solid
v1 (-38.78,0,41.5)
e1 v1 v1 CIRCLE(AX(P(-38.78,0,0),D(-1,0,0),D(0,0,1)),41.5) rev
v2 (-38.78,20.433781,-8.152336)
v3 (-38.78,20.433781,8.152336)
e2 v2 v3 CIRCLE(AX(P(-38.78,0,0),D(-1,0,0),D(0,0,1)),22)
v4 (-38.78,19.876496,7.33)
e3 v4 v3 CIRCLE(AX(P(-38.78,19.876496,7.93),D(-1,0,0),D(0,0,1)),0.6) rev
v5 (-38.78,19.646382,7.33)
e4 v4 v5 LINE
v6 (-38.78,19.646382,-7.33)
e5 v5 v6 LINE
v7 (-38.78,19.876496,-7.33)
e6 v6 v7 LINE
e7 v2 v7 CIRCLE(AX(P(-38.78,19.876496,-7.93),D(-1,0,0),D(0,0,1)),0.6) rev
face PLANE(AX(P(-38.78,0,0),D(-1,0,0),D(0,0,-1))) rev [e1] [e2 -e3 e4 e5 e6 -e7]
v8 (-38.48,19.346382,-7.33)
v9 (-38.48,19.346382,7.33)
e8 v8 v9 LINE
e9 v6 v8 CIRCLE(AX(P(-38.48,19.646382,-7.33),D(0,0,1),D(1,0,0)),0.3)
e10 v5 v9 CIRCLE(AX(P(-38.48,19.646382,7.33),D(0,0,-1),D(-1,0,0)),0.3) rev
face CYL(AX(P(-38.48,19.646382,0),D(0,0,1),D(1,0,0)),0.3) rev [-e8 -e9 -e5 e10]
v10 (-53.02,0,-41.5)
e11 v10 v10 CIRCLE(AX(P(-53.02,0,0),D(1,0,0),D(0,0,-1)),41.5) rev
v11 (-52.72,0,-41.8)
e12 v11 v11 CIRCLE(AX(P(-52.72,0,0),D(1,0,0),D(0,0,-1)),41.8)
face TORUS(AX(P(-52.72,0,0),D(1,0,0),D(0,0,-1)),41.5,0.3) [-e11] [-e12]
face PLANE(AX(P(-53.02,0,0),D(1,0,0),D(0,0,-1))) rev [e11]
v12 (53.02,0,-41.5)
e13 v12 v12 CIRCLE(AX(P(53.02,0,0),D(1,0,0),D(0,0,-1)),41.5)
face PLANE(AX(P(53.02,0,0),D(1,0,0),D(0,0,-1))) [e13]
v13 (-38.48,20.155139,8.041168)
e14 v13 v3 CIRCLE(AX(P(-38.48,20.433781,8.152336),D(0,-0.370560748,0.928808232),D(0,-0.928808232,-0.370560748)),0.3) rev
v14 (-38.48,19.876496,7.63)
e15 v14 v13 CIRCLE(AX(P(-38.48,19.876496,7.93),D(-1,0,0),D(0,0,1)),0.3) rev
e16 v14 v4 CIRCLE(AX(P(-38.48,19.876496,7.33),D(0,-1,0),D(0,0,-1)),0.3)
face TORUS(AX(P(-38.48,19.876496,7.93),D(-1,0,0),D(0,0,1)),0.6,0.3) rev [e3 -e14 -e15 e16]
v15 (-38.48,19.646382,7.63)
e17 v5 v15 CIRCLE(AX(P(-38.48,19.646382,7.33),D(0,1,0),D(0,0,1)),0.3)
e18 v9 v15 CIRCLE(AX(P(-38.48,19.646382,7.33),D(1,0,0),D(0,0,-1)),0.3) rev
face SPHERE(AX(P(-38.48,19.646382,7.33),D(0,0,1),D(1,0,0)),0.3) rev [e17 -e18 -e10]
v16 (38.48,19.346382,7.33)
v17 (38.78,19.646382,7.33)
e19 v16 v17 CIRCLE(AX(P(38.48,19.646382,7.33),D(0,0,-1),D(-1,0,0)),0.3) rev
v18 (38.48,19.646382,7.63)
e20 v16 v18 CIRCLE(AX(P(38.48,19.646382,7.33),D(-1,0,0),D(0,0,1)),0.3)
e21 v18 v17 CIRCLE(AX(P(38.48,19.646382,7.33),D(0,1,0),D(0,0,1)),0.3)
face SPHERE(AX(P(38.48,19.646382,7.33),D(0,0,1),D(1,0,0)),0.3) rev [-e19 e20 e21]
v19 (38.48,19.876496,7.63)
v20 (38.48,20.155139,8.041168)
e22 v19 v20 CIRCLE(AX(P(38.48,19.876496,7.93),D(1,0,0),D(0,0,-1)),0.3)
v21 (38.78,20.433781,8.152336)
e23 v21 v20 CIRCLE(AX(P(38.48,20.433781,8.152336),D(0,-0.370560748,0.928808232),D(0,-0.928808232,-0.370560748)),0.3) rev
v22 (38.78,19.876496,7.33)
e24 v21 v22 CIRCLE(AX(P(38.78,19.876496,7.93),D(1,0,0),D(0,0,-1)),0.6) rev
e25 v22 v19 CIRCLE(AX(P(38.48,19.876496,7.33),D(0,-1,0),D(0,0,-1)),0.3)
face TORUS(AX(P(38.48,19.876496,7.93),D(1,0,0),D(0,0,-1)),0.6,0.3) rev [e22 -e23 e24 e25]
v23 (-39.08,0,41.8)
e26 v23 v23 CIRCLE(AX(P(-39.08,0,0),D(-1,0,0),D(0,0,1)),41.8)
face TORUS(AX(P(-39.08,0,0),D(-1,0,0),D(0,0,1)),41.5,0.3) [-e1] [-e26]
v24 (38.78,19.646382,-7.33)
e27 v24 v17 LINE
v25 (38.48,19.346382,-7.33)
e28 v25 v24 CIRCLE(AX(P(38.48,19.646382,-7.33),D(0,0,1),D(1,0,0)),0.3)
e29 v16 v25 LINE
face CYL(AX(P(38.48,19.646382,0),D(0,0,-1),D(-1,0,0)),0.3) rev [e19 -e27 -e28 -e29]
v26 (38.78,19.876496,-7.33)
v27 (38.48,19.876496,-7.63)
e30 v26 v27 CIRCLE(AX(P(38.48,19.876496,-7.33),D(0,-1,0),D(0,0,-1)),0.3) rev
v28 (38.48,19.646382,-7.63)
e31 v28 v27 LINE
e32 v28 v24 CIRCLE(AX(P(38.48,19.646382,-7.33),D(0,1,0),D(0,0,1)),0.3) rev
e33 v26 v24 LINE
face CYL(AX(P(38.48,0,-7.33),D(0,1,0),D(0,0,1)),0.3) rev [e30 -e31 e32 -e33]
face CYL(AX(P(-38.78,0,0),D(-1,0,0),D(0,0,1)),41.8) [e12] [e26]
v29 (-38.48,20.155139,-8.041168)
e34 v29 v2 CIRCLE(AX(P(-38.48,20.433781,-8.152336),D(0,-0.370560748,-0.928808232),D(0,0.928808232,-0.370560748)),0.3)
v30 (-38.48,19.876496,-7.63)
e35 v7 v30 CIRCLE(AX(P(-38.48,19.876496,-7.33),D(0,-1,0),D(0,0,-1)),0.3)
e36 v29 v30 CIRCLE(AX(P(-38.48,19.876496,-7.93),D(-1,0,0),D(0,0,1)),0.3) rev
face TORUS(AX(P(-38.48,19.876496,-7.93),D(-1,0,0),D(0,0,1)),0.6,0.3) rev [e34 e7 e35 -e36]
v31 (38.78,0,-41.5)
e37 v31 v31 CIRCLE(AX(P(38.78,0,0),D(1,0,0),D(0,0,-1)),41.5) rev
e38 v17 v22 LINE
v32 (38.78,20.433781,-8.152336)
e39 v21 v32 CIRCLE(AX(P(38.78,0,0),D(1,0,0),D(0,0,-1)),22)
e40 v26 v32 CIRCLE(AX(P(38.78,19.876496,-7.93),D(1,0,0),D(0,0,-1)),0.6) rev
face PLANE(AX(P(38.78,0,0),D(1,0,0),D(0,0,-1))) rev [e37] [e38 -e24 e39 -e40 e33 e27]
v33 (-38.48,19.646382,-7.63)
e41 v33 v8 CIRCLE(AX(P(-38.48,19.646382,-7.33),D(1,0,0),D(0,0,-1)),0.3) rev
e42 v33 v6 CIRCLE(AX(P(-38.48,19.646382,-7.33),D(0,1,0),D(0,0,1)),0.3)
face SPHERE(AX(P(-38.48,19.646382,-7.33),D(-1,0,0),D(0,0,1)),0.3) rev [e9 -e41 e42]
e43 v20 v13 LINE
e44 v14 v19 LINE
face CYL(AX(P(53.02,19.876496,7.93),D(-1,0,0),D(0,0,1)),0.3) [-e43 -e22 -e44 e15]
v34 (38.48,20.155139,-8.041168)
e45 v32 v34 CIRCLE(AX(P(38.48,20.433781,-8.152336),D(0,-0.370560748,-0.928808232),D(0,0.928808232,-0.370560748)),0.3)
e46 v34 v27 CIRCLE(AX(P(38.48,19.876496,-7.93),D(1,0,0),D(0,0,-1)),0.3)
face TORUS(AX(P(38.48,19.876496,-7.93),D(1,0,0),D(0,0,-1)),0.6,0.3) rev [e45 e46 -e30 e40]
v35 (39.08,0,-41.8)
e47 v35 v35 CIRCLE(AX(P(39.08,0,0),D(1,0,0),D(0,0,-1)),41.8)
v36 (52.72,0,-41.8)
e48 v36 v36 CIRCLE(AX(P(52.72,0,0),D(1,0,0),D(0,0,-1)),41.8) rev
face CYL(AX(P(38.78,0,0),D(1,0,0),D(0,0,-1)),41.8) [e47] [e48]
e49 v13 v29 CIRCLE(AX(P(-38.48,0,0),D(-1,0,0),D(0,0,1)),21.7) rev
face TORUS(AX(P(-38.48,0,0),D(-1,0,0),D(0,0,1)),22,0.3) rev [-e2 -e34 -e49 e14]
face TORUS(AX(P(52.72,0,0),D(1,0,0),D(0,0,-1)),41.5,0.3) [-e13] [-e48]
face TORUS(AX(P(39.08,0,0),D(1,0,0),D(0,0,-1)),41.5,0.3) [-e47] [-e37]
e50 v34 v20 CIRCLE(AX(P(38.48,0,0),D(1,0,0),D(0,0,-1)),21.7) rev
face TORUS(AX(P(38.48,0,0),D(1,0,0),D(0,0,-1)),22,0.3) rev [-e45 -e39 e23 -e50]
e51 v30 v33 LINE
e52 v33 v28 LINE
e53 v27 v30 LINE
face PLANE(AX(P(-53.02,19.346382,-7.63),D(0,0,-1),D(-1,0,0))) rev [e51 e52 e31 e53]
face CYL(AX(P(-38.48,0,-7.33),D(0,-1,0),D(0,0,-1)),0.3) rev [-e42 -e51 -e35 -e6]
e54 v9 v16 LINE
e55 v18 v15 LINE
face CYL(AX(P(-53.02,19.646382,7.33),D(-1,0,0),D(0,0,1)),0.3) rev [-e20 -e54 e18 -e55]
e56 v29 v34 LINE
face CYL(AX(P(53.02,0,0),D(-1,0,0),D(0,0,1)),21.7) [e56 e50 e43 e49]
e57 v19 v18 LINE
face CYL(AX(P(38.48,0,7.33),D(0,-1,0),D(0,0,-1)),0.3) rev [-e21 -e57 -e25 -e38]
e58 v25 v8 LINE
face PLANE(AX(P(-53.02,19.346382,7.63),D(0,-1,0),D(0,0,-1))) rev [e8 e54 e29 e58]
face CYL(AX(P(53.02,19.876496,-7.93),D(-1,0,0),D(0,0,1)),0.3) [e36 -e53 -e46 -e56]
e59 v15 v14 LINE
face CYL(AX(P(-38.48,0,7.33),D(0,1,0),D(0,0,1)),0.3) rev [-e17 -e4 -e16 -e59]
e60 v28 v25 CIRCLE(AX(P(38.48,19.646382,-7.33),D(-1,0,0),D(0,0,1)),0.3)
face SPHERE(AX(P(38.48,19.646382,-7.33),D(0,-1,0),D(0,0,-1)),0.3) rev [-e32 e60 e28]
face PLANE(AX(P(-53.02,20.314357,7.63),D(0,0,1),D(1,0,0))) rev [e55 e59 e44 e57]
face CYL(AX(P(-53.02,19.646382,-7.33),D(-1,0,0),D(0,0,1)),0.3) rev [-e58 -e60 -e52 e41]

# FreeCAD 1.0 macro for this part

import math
import FreeCAD as App
import Part
import Sketcher
from FreeCAD import Vector
Q = App.Units.Quantity

doc = App.newDocument("Part")
params = doc.addObject("Spreadsheet::Sheet", "Params")
for row, (alias, value) in enumerate([
    ("sketch1_diameter", "43.4 mm"),
    ("pad1_length", "106.04 mm"),
    ("sketch2_radius", "21.7 mm"),
    ("sketch2_height", "15.26 mm"),
    ("sketch3_diameter", "83.6 mm"),
    ("pad2_length", "14.24 mm"),
    ("fillet_radius", "0.3 mm"),
], start=1):
    params.set(f"A{row}", alias)
    params.set(f"B{row}", "=" + value)
    params.setAlias(f"B{row}", alias)

body = doc.addObject("PartDesign::Body", "Body")

# Sketch on YZ plane
sketch1 = doc.addObject("Sketcher::SketchObject", "Sketch")
body.addObject(sketch1)
sketch1.AttachmentSupport = (doc.YZ_Plane, [""])
sketch1.MapMode = "FlatFace"
sketch1.addGeometry(Part.Circle(Vector(0, 0, 0), Vector(0, 0, 1), 22), False)
sketch1.addConstraint([
    Sketcher.Constraint("Coincident", 0, 3, -1, 1),
    Sketcher.Constraint("Diameter", 0, Q("43.4 mm")),
])
sketch1.setExpression("Constraints[1]", "Params.sketch1_diameter")
pad1 = doc.addObject("PartDesign::Pad", "Pad")
body.addObject(pad1)
pad1.Profile = sketch1
pad1.setExpression("Length", "Params.pad1_length")
pad1.Midplane = True

# Sketch on YZ plane
sketch2 = doc.addObject("Sketcher::SketchObject", "Sketch001")
body.addObject(sketch2)
sketch2.AttachmentSupport = (doc.YZ_Plane, [""])
sketch2.MapMode = "FlatFace"
sketch2.AttachmentOffset = App.Placement(Vector(0, 0, 53.02), App.Rotation())
sketch2.addGeometry([
    Part.LineSegment(Vector(20.3, 7.6, 0), Vector(19.3, 7.6, 0)),
    Part.LineSegment(Vector(19.3, 7.6, 0), Vector(19.3, -7.6, 0)),
    Part.LineSegment(Vector(19.3, -7.6, 0), Vector(20.3, -7.6, 0)),
    Part.ArcOfCircle(Part.Circle(Vector(0, 0, 0), Vector(0, 0, 1), 21.7), math.radians(-21), math.radians(21)),
], False)
sketch2.addConstraint([
    Sketcher.Constraint("Coincident", 0, 2, 1, 1),
    Sketcher.Constraint("Coincident", 1, 2, 2, 1),
    Sketcher.Constraint("Coincident", 2, 2, 3, 1),
    Sketcher.Constraint("Coincident", 3, 2, 0, 1),
    Sketcher.Constraint("Horizontal", 0),
    Sketcher.Constraint("Vertical", 1),
    Sketcher.Constraint("Horizontal", 2),
    Sketcher.Constraint("Coincident", 3, 3, -1, 1),
    Sketcher.Constraint("Vertical", 2, 2, 3, 2),
    Sketcher.Constraint("Radius", 3, Q("21.7 mm")),
    Sketcher.Constraint("DistanceY", 1, 2, 1, 1, Q("15.26 mm")),
    Sketcher.Constraint("DistanceX", 0, 2, 0, 1, Q("0.967975 mm")),
])
sketch2.setExpression("Constraints[9]", "Params.sketch2_radius")
sketch2.setExpression("Constraints[10]", "Params.sketch2_height")
pocket1 = doc.addObject("PartDesign::Pocket", "Pocket")
body.addObject(pocket1)
pocket1.Profile = sketch2
pocket1.Type = "ThroughAll"
pocket1.Midplane = True

# Sketch on YZ plane
sketch3 = doc.addObject("Sketcher::SketchObject", "Sketch002")
body.addObject(sketch3)
sketch3.AttachmentSupport = (doc.YZ_Plane, [""])
sketch3.MapMode = "FlatFace"
sketch3.AttachmentOffset = App.Placement(Vector(0, 0, 53.02), App.Rotation())
sketch3.addGeometry(Part.Circle(Vector(0, 0, 0), Vector(0, 0, 1), 42), False)
sketch3.addConstraint([
    Sketcher.Constraint("Coincident", 0, 3, -1, 1),
    Sketcher.Constraint("Diameter", 0, Q("83.6 mm")),
])
sketch3.setExpression("Constraints[1]", "Params.sketch3_diameter")
pad2 = doc.addObject("PartDesign::Pad", "Pad001")
body.addObject(pad2)
pad2.Profile = sketch3
pad2.setExpression("Length", "Params.pad2_length")
pad2.Reversed = True
doc.recompute()

mirrored = doc.addObject("PartDesign::Mirrored", "Mirrored")
body.addObject(mirrored)
mirrored.Originals = [pad2]
mirrored.MirrorPlane = (doc.YZ_Plane, [""])
body.Tip = mirrored
doc.recompute()

fillet = doc.addObject("PartDesign::Fillet", "Fillet")
body.addObject(fillet)
fillet.Base = (mirrored, ["Edge1"])
fillet.UseAllEdges = True
fillet.setExpression("Radius", "Params.fillet_radius")

doc.recompute()
